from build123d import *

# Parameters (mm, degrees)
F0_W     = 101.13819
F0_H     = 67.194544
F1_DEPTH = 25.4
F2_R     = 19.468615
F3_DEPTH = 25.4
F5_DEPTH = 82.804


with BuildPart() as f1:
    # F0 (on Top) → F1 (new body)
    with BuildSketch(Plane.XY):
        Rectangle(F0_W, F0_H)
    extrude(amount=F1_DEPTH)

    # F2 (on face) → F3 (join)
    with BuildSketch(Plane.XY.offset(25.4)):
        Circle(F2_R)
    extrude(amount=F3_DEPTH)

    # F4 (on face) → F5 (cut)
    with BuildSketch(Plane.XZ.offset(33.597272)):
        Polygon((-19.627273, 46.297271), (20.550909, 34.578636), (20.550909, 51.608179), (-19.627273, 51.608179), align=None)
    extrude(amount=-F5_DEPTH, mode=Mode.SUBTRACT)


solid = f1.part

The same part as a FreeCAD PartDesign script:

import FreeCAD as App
import Part
import Sketcher
from FreeCAD import Vector
Q = App.Units.Quantity

doc = App.newDocument("Part")
body = doc.addObject("PartDesign::Body", "Body")

# Sketch on XY plane
sketch1 = body.newObject("Sketcher::SketchObject", "Sketch")
sketch1.AttachmentSupport = (doc.getObject("XY_Plane"), [""])
sketch1.MapMode = "FlatFace"
sketch1.addGeometry([
    Part.LineSegment(Vector(-51, 34, 0), Vector(-51, -34, 0)),
    Part.LineSegment(Vector(-51, -34, 0), Vector(51, -34, 0)),
    Part.LineSegment(Vector(51, -34, 0), Vector(51, 34, 0)),
    Part.LineSegment(Vector(51, 34, 0), Vector(-51, 34, 0)),
], False)
sketch1.addConstraint([
    Sketcher.Constraint("Coincident", 0, 2, 1, 1),
    Sketcher.Constraint("Coincident", 1, 2, 2, 1),
    Sketcher.Constraint("Coincident", 2, 2, 3, 1),
    Sketcher.Constraint("Coincident", 3, 2, 0, 1),
    Sketcher.Constraint("Vertical", 0),
    Sketcher.Constraint("Horizontal", 1),
    Sketcher.Constraint("Vertical", 2),
    Sketcher.Constraint("Horizontal", 3),
    Sketcher.Constraint("Symmetric", 0, 2, 2, 2, -1, 1),
    Sketcher.Constraint("DistanceX", 1, 1, 1, 2, 101.13819),
    Sketcher.Constraint("DistanceY", 0, 2, 0, 1, 67.194544),
])
pad1 = body.newObject("PartDesign::Pad", "Pad")
pad1.Profile = sketch1
pad1.Length = Q("1 in")

# Sketch on XY plane
sketch2 = body.newObject("Sketcher::SketchObject", "Sketch001")
sketch2.AttachmentSupport = (doc.getObject("XY_Plane"), [""])
sketch2.MapMode = "FlatFace"
sketch2.AttachmentOffset = App.Placement(Vector(0, 0, 1 * 25.4), App.Rotation())
sketch2.addGeometry(Part.Circle(Vector(0, 0, 0), Vector(0, 0, 1), 19), False)
sketch2.addConstraint([
    Sketcher.Constraint("Coincident", 0, 3, -1, 1),
    Sketcher.Constraint("Diameter", 0, 38.93723),
])
pad2 = body.newObject("PartDesign::Pad", "Pad001")
pad2.Profile = sketch2
pad2.Length = Q("1 in")

# Sketch on XZ plane
sketch3 = body.newObject("Sketcher::SketchObject", "Sketch002")
sketch3.AttachmentSupport = (doc.getObject("XZ_Plane"), [""])
sketch3.MapMode = "FlatFace"
sketch3.AttachmentOffset = App.Placement(Vector(0, 0, 33.597272), App.Rotation())
sketch3.addGeometry([
    Part.LineSegment(Vector(-20, 46, 0), Vector(21, 35, 0)),
    Part.LineSegment(Vector(21, 35, 0), Vector(21, 52, 0)),
    Part.LineSegment(Vector(21, 52, 0), Vector(-20, 52, 0)),
    Part.LineSegment(Vector(-20, 52, 0), Vector(-20, 46, 0)),
], False)
sketch3.addConstraint([
    Sketcher.Constraint("Coincident", 0, 2, 1, 1),
    Sketcher.Constraint("Coincident", 1, 2, 2, 1),
    Sketcher.Constraint("Coincident", 2, 2, 3, 1),
    Sketcher.Constraint("Coincident", 3, 2, 0, 1),
    Sketcher.Constraint("Vertical", 1),
    Sketcher.Constraint("Horizontal", 2),
    Sketcher.Constraint("Vertical", 3),
    Sketcher.Constraint("DistanceX", 2, 2, 2, 1, 40.178182),
    Sketcher.Constraint("DistanceY", 1, 1, 1, 2, 17.029543),
    Sketcher.Constraint("DistanceY", 3, 2, 3, 1, 5.310908),
    Sketcher.Constraint("DistanceX", -1, 1, 0, 2, 20.550909),
    Sketcher.Constraint("DistanceY", -1, 1, 1, 2, 51.608179),
])
pocket1 = body.newObject("PartDesign::Pocket", "Pocket")
pocket1.Profile = sketch3
pocket1.Length = Q("3.26 in")

doc.recompute()
